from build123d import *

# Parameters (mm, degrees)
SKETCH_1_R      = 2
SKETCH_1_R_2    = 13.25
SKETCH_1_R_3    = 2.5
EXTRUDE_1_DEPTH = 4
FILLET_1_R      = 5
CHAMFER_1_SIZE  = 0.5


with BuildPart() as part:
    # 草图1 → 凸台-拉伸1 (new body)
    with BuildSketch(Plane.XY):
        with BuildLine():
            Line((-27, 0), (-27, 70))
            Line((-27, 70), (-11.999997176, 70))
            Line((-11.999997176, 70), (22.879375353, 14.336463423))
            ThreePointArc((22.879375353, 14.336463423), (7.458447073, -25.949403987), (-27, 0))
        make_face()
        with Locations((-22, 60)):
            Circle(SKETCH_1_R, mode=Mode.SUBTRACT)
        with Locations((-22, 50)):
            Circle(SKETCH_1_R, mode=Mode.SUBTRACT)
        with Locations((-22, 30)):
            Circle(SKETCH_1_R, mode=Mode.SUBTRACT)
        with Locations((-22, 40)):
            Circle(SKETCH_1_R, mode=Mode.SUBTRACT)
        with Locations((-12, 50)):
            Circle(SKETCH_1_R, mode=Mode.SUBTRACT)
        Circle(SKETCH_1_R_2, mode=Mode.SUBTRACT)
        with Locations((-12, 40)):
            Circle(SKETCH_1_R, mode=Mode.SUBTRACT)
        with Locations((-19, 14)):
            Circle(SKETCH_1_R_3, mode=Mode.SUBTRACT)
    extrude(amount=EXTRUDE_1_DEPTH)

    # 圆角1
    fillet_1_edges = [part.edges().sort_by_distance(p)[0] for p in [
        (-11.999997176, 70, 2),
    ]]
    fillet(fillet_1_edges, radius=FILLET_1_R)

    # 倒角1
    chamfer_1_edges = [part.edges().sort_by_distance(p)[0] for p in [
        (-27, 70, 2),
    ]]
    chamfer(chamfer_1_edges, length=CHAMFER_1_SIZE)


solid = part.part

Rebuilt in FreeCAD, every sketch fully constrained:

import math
import FreeCAD as App
import Part
import Sketcher


def edges_at(feature, points):
    """Names of the edges that pass closest to the given points."""
    edges = feature.Shape.Edges
    near = lambda p: min(range(len(edges)), key=lambda i: edges[i].distToShape(Part.Vertex(*p))[0])
    return sorted({f"Edge{near(p) + 1}" for p in points})

doc = App.newDocument("Part")
params = doc.addObject("Spreadsheet::Sheet", "Params")
for row, (alias, value) in enumerate([
    ("sketch1_diameter", "5 mm"),
    ("sketch1_diameter2", "4 mm"),
    ("sketch1_radius", "27 mm"),
    ("sketch1_diameter3", "26.5 mm"),
    ("sketch1_height", "70 mm"),
    ("pad1_length", "4 mm"),
    ("fillet_radius", "5 mm"),
    ("chamfer_size", "0.5 mm"),
], start=1):
    params.set(f"A{row}", alias)
    params.set(f"B{row}", "=" + value)
    params.setAlias(f"B{row}", alias)

body = doc.addObject("PartDesign::Body", "Body")

# Sketch on XY plane
sketch1 = body.newObject("Sketcher::SketchObject", "Sketch")
sketch1.AttachmentSupport = (doc.getObject("XY_Plane"), [""])
sketch1.MapMode = "FlatFace"
sketch1.addGeometry(Part.LineSegment(App.Vector(-27, 70, 0), App.Vector(-27, 0, 0)), False)
sketch1.addGeometry(Part.ArcOfCircle(Part.Circle(App.Vector(0, 0, 0), App.Vector(0, 0, 1), 27), math.radians(180), math.radians(392)), False)
sketch1.addGeometry(Part.LineSegment(App.Vector(22.9, 14.3, 0), App.Vector(-12, 70, 0)), False)
sketch1.addGeometry(Part.LineSegment(App.Vector(-12, 70, 0), App.Vector(-27, 70, 0)), False)
sketch1.addGeometry(Part.Circle(App.Vector(0, 0, 0), App.Vector(0, 0, 1), 13.2), False)
sketch1.addGeometry(Part.Circle(App.Vector(-19, 14, 0), App.Vector(0, 0, 1), 2.5), False)
sketch1.addGeometry(Part.Circle(App.Vector(-12, 40, 0), App.Vector(0, 0, 1), 2), False)
sketch1.addGeometry(Part.Circle(App.Vector(-22, 30, 0), App.Vector(0, 0, 1), 2), False)
sketch1.addGeometry(Part.Circle(App.Vector(-22, 40, 0), App.Vector(0, 0, 1), 2), False)
sketch1.addGeometry(Part.Circle(App.Vector(-12, 50, 0), App.Vector(0, 0, 1), 2), False)
sketch1.addGeometry(Part.Circle(App.Vector(-22, 50, 0), App.Vector(0, 0, 1), 2), False)
sketch1.addGeometry(Part.Circle(App.Vector(-22, 60, 0), App.Vector(0, 0, 1), 2), False)
sketch1.addConstraint(Sketcher.Constraint("Tangent", 0, 2, 1, 1))
sketch1.addConstraint(Sketcher.Constraint("Tangent", 1, 2, 2, 1))
sketch1.addConstraint(Sketcher.Constraint("Coincident", 2, 2, 3, 1))
sketch1.addConstraint(Sketcher.Constraint("Coincident", 3, 2, 0, 1))
sketch1.addConstraint(Sketcher.Constraint("Vertical", 0))
sketch1.addConstraint(Sketcher.Constraint("Horizontal", 3))
sketch1.addConstraint(Sketcher.Constraint("Coincident", 1, 3, -1, 1))
sketch1.addConstraint(Sketcher.Constraint("Coincident", 4, 3, -1, 1))
sketch1.addConstraint(Sketcher.Constraint("Equal", 6, 7))
sketch1.addConstraint(Sketcher.Constraint("Equal", 7, 8))
sketch1.addConstraint(Sketcher.Constraint("Equal", 8, 9))
sketch1.addConstraint(Sketcher.Constraint("Equal", 9, 10))
sketch1.addConstraint(Sketcher.Constraint("Equal", 10, 11))
sketch1.addConstraint(Sketcher.Constraint("Horizontal", 6, 3, 8, 3))
sketch1.addConstraint(Sketcher.Constraint("Horizontal", 9, 3, 10, 3))
sketch1.addConstraint(Sketcher.Constraint("Vertical", 7, 3, 8, 3))
sketch1.addConstraint(Sketcher.Constraint("Vertical", 6, 3, 9, 3))
sketch1.addConstraint(Sketcher.Constraint("Vertical", 8, 3, 10, 3))
sketch1.addConstraint(Sketcher.Constraint("Vertical", 10, 3, 11, 3))
sketch1.addConstraint(Sketcher.Constraint("Diameter", 5, 5.0))
sketch1.addConstraint(Sketcher.Constraint("Diameter", 6, 4.0))
sketch1.addConstraint(Sketcher.Constraint("Radius", 1, 27.0))
sketch1.addConstraint(Sketcher.Constraint("Diameter", 4, 26.5))
sketch1.addConstraint(Sketcher.Constraint("DistanceY", 0, 2, 0, 1, 70.0))
sketch1.addConstraint(Sketcher.Constraint("DistanceX", 5, 3, -1, 1, 19.0))
sketch1.addConstraint(Sketcher.Constraint("DistanceY", -1, 1, 5, 3, 14.0))
sketch1.addConstraint(Sketcher.Constraint("DistanceX", 6, 3, -1, 1, 12.0))
sketch1.addConstraint(Sketcher.Constraint("DistanceY", -1, 1, 6, 3, 40.0))
sketch1.addConstraint(Sketcher.Constraint("DistanceX", 7, 3, -1, 1, 22.0))
sketch1.addConstraint(Sketcher.Constraint("DistanceY", -1, 1, 7, 3, 30.0))
sketch1.addConstraint(Sketcher.Constraint("DistanceY", -1, 1, 9, 3, 50.0))
sketch1.addConstraint(Sketcher.Constraint("DistanceY", -1, 1, 11, 3, 60.0))
sketch1.addConstraint(Sketcher.Constraint("Distance", 2, 65.688659))
sketch1.setExpression("Constraints[19]", "Params.sketch1_diameter")
sketch1.setExpression("Constraints[20]", "Params.sketch1_diameter2")
sketch1.setExpression("Constraints[21]", "Params.sketch1_radius")
sketch1.setExpression("Constraints[22]", "Params.sketch1_diameter3")
sketch1.setExpression("Constraints[23]", "Params.sketch1_height")
pad1 = body.newObject("PartDesign::Pad", "Pad")
pad1.Profile = sketch1
pad1.setExpression("Length", "Params.pad1_length")
doc.recompute()

fillet = body.newObject("PartDesign::Fillet", "Fillet")
fillet.Base = (pad1, edges_at(pad1, [(-12, 70, 2)]))
fillet.setExpression("Radius", "Params.fillet_radius")
doc.recompute()

chamfer = body.newObject("PartDesign::Chamfer", "Chamfer")
chamfer.Base = (fillet, edges_at(fillet, [(-27, 70, 2)]))
chamfer.setExpression("Size", "Params.chamfer_size")

doc.recompute()
